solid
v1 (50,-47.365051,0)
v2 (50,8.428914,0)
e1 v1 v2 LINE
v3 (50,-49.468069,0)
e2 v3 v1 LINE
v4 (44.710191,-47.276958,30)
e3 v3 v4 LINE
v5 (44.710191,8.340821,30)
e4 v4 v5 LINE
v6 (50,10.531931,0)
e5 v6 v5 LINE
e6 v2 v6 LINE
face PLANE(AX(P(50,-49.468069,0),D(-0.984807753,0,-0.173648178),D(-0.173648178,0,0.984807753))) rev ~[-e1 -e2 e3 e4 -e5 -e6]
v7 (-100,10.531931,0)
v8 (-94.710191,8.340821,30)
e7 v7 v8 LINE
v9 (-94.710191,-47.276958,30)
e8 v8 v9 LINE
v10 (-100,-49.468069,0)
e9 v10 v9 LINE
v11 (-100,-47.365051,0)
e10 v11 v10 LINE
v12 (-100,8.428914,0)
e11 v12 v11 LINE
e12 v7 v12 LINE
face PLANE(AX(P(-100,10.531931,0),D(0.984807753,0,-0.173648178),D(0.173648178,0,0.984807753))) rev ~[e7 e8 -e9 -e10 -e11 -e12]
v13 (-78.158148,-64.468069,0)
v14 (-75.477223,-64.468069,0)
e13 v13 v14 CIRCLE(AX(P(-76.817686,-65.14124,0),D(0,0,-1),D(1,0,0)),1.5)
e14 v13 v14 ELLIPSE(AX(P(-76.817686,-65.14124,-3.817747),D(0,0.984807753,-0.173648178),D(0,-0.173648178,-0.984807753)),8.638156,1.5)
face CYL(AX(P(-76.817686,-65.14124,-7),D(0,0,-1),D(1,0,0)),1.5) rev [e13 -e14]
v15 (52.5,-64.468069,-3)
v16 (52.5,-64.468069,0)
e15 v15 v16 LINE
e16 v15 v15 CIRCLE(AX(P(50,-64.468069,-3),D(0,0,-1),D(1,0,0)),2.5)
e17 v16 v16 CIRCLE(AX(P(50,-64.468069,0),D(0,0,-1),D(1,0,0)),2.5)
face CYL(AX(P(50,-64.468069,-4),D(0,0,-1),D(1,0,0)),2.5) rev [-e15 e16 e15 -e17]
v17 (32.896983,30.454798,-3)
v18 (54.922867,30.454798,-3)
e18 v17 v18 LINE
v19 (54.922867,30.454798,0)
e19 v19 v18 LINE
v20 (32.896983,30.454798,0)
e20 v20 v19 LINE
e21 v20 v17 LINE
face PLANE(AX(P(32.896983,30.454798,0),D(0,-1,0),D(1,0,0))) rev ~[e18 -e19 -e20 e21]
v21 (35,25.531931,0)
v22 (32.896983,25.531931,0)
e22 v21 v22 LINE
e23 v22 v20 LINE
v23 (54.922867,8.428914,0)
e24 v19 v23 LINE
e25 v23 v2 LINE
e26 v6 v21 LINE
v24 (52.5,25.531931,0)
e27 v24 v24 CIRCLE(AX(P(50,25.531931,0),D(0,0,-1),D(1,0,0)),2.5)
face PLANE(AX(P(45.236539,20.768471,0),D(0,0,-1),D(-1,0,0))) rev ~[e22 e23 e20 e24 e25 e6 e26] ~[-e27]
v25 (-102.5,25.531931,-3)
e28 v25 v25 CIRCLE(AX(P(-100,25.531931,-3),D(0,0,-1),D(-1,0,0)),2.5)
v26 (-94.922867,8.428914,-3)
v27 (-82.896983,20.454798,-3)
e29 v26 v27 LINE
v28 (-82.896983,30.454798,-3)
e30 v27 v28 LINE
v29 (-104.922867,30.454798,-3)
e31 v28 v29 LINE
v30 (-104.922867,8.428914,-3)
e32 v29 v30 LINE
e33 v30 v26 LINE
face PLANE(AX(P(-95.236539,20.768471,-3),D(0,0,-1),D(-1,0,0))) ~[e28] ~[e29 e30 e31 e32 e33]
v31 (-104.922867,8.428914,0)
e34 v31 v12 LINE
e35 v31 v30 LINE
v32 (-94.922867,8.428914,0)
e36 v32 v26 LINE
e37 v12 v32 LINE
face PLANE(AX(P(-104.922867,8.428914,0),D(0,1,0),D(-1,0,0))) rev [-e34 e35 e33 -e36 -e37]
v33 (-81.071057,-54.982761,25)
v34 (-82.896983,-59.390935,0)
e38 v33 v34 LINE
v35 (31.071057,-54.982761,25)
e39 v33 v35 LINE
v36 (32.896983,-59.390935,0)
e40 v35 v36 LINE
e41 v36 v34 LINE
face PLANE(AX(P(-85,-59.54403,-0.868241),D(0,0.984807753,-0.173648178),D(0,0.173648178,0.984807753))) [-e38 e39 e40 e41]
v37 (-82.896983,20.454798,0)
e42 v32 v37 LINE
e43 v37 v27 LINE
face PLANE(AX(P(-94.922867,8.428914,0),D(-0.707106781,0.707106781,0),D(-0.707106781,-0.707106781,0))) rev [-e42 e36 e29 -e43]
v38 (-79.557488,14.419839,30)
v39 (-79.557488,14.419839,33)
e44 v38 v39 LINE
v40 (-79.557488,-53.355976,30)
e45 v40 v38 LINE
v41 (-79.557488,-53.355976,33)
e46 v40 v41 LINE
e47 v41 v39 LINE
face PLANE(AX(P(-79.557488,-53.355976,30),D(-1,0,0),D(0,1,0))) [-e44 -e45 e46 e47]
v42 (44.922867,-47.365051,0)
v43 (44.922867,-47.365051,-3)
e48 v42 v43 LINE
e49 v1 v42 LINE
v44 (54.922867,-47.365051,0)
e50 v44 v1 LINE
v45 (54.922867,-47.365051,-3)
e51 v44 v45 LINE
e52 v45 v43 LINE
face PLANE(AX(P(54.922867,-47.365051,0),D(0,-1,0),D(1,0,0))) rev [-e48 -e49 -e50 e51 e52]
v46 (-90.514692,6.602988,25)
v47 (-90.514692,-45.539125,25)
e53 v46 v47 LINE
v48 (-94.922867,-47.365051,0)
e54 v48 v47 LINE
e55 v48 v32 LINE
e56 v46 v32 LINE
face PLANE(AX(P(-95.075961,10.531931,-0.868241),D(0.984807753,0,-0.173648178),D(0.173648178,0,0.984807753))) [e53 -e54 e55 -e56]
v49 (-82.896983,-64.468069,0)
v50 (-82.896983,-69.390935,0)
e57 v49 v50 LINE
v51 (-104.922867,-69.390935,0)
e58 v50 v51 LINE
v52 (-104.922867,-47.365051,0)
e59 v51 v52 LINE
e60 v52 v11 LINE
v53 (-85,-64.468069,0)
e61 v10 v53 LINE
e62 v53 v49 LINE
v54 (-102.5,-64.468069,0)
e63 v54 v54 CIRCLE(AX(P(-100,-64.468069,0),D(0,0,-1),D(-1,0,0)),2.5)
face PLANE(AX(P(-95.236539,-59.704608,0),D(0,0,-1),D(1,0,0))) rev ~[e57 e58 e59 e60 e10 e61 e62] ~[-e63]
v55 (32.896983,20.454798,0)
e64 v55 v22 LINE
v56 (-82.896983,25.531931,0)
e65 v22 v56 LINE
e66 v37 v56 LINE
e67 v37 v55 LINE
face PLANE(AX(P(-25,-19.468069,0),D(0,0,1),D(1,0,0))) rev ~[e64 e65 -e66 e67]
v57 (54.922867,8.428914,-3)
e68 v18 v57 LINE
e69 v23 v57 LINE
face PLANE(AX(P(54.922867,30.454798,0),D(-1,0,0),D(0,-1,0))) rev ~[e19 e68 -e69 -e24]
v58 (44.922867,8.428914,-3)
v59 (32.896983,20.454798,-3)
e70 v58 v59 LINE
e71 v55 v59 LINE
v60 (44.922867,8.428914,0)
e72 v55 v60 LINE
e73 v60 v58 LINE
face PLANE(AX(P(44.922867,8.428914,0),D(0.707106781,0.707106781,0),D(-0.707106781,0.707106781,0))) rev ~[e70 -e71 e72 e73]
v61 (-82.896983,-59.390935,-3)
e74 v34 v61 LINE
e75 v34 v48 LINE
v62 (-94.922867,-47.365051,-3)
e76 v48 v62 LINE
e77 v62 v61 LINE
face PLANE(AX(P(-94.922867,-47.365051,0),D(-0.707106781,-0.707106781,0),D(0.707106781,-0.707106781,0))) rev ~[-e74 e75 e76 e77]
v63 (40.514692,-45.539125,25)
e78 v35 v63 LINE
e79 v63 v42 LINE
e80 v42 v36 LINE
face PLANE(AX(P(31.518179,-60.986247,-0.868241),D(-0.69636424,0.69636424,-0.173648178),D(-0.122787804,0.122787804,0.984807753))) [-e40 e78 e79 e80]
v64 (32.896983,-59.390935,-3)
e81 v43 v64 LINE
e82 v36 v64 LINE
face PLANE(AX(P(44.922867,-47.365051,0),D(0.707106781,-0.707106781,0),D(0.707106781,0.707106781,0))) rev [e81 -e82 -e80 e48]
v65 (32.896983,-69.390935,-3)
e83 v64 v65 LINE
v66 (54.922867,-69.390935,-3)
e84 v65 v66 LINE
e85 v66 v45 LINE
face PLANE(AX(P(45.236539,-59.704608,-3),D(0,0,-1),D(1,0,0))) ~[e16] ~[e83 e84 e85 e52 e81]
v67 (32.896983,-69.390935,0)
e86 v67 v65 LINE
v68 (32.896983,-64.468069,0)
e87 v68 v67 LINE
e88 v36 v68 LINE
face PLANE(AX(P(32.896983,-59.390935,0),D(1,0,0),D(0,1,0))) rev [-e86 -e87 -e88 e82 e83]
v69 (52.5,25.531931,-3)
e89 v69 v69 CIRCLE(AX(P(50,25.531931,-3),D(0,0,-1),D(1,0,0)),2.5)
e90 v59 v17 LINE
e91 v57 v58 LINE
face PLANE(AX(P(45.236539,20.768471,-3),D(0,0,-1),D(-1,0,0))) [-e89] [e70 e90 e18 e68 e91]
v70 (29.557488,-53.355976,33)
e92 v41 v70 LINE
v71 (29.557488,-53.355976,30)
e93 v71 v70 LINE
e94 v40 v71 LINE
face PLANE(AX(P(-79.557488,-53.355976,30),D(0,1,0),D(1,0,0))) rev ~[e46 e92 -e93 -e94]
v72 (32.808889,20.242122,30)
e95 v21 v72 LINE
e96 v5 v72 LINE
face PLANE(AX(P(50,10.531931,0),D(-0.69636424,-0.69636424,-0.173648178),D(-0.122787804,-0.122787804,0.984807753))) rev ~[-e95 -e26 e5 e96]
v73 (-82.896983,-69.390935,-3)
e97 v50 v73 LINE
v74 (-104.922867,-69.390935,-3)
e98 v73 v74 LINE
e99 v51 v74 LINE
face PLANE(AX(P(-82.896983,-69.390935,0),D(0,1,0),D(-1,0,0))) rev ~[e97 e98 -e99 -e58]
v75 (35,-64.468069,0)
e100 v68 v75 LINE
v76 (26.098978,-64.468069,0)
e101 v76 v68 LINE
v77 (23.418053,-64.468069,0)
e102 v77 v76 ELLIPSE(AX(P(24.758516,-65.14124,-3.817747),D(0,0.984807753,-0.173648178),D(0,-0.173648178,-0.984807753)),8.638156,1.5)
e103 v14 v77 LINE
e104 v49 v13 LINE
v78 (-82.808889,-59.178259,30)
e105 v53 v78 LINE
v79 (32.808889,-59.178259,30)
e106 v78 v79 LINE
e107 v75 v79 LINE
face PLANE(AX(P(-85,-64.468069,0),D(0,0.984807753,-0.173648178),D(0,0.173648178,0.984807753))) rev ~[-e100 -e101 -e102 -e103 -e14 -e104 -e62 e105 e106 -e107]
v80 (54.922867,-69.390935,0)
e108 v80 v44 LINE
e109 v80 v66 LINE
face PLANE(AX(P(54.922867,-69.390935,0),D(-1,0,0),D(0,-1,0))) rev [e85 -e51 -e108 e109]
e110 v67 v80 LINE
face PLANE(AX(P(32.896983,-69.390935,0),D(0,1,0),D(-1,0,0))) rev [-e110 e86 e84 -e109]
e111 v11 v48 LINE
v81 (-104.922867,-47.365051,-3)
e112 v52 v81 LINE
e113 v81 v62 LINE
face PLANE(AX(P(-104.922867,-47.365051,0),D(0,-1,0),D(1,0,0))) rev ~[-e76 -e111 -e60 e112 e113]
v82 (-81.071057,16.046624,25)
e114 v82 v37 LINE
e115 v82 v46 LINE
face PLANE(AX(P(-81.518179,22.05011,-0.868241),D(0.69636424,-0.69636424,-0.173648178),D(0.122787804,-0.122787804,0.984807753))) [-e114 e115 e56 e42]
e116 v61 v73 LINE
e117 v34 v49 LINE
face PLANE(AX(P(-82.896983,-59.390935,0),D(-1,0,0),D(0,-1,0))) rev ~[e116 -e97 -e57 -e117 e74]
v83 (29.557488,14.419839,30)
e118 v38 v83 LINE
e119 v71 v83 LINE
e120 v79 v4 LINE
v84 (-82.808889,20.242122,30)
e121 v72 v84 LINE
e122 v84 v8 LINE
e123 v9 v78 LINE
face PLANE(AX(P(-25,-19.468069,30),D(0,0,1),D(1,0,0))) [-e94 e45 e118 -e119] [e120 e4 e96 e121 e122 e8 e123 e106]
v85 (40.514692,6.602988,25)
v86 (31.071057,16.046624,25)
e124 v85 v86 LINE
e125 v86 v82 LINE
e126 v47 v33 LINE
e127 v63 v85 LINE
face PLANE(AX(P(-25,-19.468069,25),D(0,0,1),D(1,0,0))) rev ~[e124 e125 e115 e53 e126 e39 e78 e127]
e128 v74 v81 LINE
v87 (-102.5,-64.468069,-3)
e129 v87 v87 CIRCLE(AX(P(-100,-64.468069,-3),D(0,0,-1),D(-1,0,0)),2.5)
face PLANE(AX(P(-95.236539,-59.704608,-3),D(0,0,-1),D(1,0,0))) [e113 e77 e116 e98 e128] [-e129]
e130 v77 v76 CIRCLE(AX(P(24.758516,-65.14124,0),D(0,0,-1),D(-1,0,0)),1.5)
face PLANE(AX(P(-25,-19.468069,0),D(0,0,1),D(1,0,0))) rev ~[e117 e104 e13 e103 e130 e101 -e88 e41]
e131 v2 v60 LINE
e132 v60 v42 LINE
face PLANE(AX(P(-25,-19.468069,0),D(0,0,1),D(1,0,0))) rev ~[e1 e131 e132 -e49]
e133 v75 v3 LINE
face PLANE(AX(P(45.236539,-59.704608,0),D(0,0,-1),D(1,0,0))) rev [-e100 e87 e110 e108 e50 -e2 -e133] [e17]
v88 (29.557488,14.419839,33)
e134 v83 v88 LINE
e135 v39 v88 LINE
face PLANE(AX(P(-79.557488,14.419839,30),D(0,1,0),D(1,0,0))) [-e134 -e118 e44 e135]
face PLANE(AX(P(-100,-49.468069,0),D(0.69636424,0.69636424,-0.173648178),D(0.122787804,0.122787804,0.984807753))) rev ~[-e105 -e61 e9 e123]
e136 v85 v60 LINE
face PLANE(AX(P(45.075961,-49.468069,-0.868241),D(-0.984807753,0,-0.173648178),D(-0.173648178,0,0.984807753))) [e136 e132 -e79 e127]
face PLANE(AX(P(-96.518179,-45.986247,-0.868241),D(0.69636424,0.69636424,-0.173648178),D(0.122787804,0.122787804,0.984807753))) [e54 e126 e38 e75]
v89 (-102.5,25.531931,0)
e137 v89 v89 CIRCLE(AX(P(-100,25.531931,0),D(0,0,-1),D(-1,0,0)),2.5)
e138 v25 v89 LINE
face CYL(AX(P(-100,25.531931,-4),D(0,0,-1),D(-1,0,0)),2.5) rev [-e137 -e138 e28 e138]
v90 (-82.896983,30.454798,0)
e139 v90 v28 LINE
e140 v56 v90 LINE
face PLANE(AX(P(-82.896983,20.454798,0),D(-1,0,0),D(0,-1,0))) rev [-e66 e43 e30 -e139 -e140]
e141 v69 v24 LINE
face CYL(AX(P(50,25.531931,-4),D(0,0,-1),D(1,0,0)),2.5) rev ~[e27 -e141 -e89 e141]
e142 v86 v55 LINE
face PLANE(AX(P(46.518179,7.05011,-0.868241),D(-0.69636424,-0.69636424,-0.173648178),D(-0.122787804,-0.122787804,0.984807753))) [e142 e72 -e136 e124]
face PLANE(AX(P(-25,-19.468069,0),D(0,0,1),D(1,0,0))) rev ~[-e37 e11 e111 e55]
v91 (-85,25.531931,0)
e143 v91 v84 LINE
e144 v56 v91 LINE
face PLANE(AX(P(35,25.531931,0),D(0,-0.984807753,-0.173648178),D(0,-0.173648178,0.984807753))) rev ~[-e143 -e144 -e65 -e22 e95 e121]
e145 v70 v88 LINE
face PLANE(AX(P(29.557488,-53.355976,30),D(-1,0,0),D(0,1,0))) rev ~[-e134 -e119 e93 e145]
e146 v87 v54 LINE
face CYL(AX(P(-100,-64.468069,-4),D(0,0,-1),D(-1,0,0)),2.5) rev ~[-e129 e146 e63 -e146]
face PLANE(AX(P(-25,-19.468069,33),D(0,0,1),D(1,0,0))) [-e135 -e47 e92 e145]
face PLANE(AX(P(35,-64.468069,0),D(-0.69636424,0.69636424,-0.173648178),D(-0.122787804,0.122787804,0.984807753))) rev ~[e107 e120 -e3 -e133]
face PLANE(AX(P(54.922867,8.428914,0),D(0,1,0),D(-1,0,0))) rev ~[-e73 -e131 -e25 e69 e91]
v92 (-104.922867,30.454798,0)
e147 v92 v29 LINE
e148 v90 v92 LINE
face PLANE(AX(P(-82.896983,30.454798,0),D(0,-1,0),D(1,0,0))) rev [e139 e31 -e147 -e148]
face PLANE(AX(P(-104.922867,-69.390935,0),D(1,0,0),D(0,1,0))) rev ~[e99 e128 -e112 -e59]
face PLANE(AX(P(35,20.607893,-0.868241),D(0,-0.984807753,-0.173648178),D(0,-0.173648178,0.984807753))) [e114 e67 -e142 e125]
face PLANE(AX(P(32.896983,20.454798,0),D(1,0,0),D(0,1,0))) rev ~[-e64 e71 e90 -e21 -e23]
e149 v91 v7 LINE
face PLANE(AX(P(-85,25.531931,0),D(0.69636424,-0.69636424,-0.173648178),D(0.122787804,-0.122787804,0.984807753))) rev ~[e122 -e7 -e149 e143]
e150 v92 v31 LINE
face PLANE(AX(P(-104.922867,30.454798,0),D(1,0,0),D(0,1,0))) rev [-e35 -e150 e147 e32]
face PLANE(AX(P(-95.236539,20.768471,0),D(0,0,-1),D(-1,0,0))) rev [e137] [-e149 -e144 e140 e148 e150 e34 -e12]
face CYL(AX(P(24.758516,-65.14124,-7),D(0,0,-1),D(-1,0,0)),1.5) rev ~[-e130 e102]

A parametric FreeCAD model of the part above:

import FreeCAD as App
import Part
import Sketcher
from FreeCAD import Vector


def faces_at(feature, points):
    """Names of the faces that lie closest to the given points."""
    faces = feature.Shape.Faces
    near = lambda p: min(range(len(faces)), key=lambda i: faces[i].distToShape(Part.Vertex(*p))[0])
    return sorted({f"Face{near(p) + 1}" for p in points})


def add_polygon(sketch, points):
    """Adds a closed chain of lines whose ends are joined by coincident constraints."""
    first, n = sketch.GeometryCount, len(points)
    for a, b in zip(points, points[1:] + points[:1]):
        sketch.addGeometry(Part.LineSegment(App.Vector(*a, 0), App.Vector(*b, 0)), False)
    for i in range(n):
        sketch.addConstraint(Sketcher.Constraint("Coincident", first + i, 2, first + (i + 1) % n, 1))

doc = App.newDocument("Part")
body = doc.addObject("PartDesign::Body", "Body")

sketch1 = body.newObject("Sketcher::SketchObject", "Sketch")
sketch1.AttachmentSupport = (doc.getObject("XY_Plane"), [""])
sketch1.MapMode = "FlatFace"
add_polygon(sketch1, [(-100, 11), (-100, -49), (-85, -64), (35, -64), (50, -49), (50, 11), (35, 26), (-85, 26)])
sketch1.addConstraint([
    Sketcher.Constraint("Vertical", 0),
    Sketcher.Constraint("Horizontal", 2),
    Sketcher.Constraint("Vertical", 4),
    Sketcher.Constraint("Horizontal", 6),
    Sketcher.Constraint("Perpendicular", 1, 3),
    Sketcher.Constraint("Perpendicular", 3, 5),
    Sketcher.Constraint("Perpendicular", 5, 7),
    Sketcher.Constraint("Horizontal", 0, 2, 3, 2),
    Sketcher.Constraint("Horizontal", 4, 2, 7, 2),
    Sketcher.Constraint("Vertical", 2, 2, 5, 2),
    Sketcher.Constraint("Vertical", 1, 2, 6, 2),
    Sketcher.Constraint("DistanceX", 2, 1, 2, 2, 120.0),
    Sketcher.Constraint("DistanceY", 0, 2, 0, 1, 60.0),
    Sketcher.Constraint("DistanceX", 0, 2, -1, 1, 100.0),
    Sketcher.Constraint("DistanceX", 1, 2, -1, 1, 85.0),
    Sketcher.Constraint("DistanceY", 0, 2, -1, 1, 49.468069),
])
pad1 = body.newObject("PartDesign::Pad", "Pad")
pad1.Profile = sketch1
pad1.Length = 30
pad1.TaperAngle = -10
doc.recompute()

thickness = body.newObject("PartDesign::Thickness", "Thickness")
thickness.Base = (pad1, faces_at(pad1, [(-25, -19.468, 0)]))
thickness.Value = 5
thickness.Reversed = True
thickness.Join = "Intersection"

sketch2 = body.newObject("Sketcher::SketchObject", "Sketch001")
sketch2.AttachmentSupport = (doc.getObject("XY_Plane"), [""])
sketch2.MapMode = "FlatFace"
sketch2.AttachmentOffset = App.Placement(Vector(0, 0, -7), App.Rotation())
sketch2.addGeometry(Part.Circle(Vector(24.8, -65.1, 0), Vector(0, 0, 1), 1.5), False)
sketch2.addConstraint([
    Sketcher.Constraint("Diameter", 0, 3.0),
    Sketcher.Constraint("DistanceY", 0, 3, -1, 1, 65.14124),
    Sketcher.Constraint("DistanceX", -1, 1, 0, 3, 24.758516),
])
pocket1 = body.newObject("PartDesign::Pocket", "Pocket")
pocket1.Profile = sketch2
pocket1.Length = 15
pocket1.Reversed = True
doc.recompute()

datumplane = body.newObject("PartDesign::Plane", "DatumPlane")
datumplane.AttachmentSupport = (doc.getObject("YZ_Plane"), [""])
datumplane.MapMode = "FlatFace"
datumplane.AttachmentOffset = App.Placement(Vector(0, 0, -26.029585), App.Rotation())
mirrored = body.newObject("PartDesign::Mirrored", "Mirrored")
mirrored.Originals = [pocket1]
mirrored.MirrorPlane = (datumplane, [""])
body.Tip = mirrored

sketch3 = body.newObject("Sketcher::SketchObject", "Sketch002")
sketch3.AttachmentSupport = (doc.getObject("XY_Plane"), [""])
sketch3.MapMode = "FlatFace"
sketch3.AttachmentOffset = App.Placement(Vector(0, 0, 30), App.Rotation())
add_polygon(sketch3, [(-80, 14), (-80, -53), (30, -53), (30, 14)])
sketch3.addConstraint([
    Sketcher.Constraint("Vertical", 0),
    Sketcher.Constraint("Horizontal", 1),
    Sketcher.Constraint("Vertical", 2),
    Sketcher.Constraint("Horizontal", 3),
    Sketcher.Constraint("DistanceX", 1, 1, 1, 2, 109.114976),
    Sketcher.Constraint("DistanceY", 0, 2, 0, 1, 67.775815),
    Sketcher.Constraint("DistanceX", 0, 2, -1, 1, 79.557488),
    Sketcher.Constraint("DistanceY", -1, 1, 2, 2, 14.419839),
])
pad2 = body.newObject("PartDesign::Pad", "Pad001")
pad2.Profile = sketch3
pad2.Length = 3

sketch4 = body.newObject("Sketcher::SketchObject", "Sketch003")
sketch4.AttachmentSupport = (doc.getObject("XY_Plane"), [""])
sketch4.MapMode = "FlatFace"
add_polygon(sketch4, [(55, 8), (45, 8), (33, 20), (33, 30), (55, 30)])
sketch4.addConstraint([
    Sketcher.Constraint("Horizontal", 0),
    Sketcher.Constraint("Vertical", 2),
    Sketcher.Constraint("Horizontal", 3),
    Sketcher.Constraint("Vertical", 4),
    Sketcher.Constraint("Equal", 0, 2),
    Sketcher.Constraint("Equal", 3, 4),
    Sketcher.Constraint("DistanceX", 0, 2, 0, 1, 10.0),
    Sketcher.Constraint("DistanceY", -1, 1, 1, 2, 20.454798),
    Sketcher.Constraint("Distance", 1, 17.007169),
    Sketcher.Constraint("DistanceX", -1, 1, 0, 2, 44.922867),
])
pad3 = body.newObject("PartDesign::Pad", "Pad002")
pad3.Profile = sketch4
pad3.Length = 3
pad3.Reversed = True
doc.recompute()

datumplane2 = body.newObject("PartDesign::Plane", "DatumPlane001")
datumplane2.AttachmentSupport = (doc.getObject("YZ_Plane"), [""])
datumplane2.MapMode = "FlatFace"
datumplane2.AttachmentOffset = App.Placement(Vector(0, 0, -25), App.Rotation())
mirrored2 = body.newObject("PartDesign::Mirrored", "Mirrored001")
mirrored2.Originals = [pad3]
mirrored2.MirrorPlane = (datumplane2, [""])
body.Tip = mirrored2
doc.recompute()

datumplane3 = body.newObject("PartDesign::Plane", "DatumPlane002")
datumplane3.AttachmentSupport = (doc.getObject("XZ_Plane"), [""])
datumplane3.MapMode = "FlatFace"
datumplane3.AttachmentOffset = App.Placement(Vector(0, 0, 19.468069), App.Rotation())
mirrored3 = body.newObject("PartDesign::Mirrored", "Mirrored002")
mirrored3.Originals = [pad3]
mirrored3.MirrorPlane = (datumplane3, [""])
body.Tip = mirrored3

sketch5 = body.newObject("Sketcher::SketchObject", "Sketch004")
sketch5.AttachmentSupport = (doc.getObject("XY_Plane"), [""])
sketch5.MapMode = "FlatFace"
add_polygon(sketch5, [(-105, -47), (-95, -47), (-83, -59), (-83, -69), (-105, -69)])
sketch5.addConstraint([
    Sketcher.Constraint("Horizontal", 0),
    Sketcher.Constraint("Vertical", 2),
    Sketcher.Constraint("Horizontal", 3),
    Sketcher.Constraint("Vertical", 4),
    Sketcher.Constraint("Equal", 0, 2),
    Sketcher.Constraint("Equal", 3, 4),
    Sketcher.Constraint("DistanceX", 0, 1, 0, 2, 10.0),
    Sketcher.Constraint("Distance", 1, 17.007169),
    Sketcher.Constraint("DistanceY", 0, 2, -1, 1, 47.365051),
    Sketcher.Constraint("DistanceX", 0, 2, -1, 1, 94.922867),
])
pad4 = body.newObject("PartDesign::Pad", "Pad003")
pad4.Profile = sketch5
pad4.Length = 3
pad4.Reversed = True

sketch6 = body.newObject("Sketcher::SketchObject", "Sketch005")
sketch6.AttachmentSupport = (doc.getObject("XY_Plane"), [""])
sketch6.MapMode = "FlatFace"
sketch6.AttachmentOffset = App.Placement(Vector(0, 0, -4), App.Rotation())
sketch6.addGeometry(Part.Circle(Vector(50, -64.5, 0), Vector(0, 0, 1), 2.5), False)
sketch6.addConstraint([
    Sketcher.Constraint("Diameter", 0, 5.0),
    Sketcher.Constraint("DistanceX", -1, 1, 0, 3, 50.0),
    Sketcher.Constraint("DistanceY", 0, 3, -1, 1, 64.468069),
])
pocket2 = body.newObject("PartDesign::Pocket", "Pocket001")
pocket2.Profile = sketch6
pocket2.Length = 38
pocket2.Reversed = True
doc.recompute()

datumplane4 = body.newObject("PartDesign::Plane", "DatumPlane003")
datumplane4.AttachmentSupport = (doc.getObject("YZ_Plane"), [""])
datumplane4.MapMode = "FlatFace"
datumplane4.AttachmentOffset = App.Placement(Vector(0, 0, -25), App.Rotation())
mirrored4 = body.newObject("PartDesign::Mirrored", "Mirrored003")
mirrored4.Originals = [pocket2]
mirrored4.MirrorPlane = (datumplane4, [""])
body.Tip = mirrored4
doc.recompute()

datumplane5 = body.newObject("PartDesign::Plane", "DatumPlane004")
datumplane5.AttachmentSupport = (doc.getObject("XZ_Plane"), [""])
datumplane5.MapMode = "FlatFace"
datumplane5.AttachmentOffset = App.Placement(Vector(0, 0, 19.468069), App.Rotation())
mirrored5 = body.newObject("PartDesign::Mirrored", "Mirrored004")
mirrored5.Originals = [pocket2]
mirrored5.MirrorPlane = (datumplane5, [""])
body.Tip = mirrored5

sketch7 = body.newObject("Sketcher::SketchObject", "Sketch006")
sketch7.AttachmentSupport = (doc.getObject("XY_Plane"), [""])
sketch7.MapMode = "FlatFace"
sketch7.AttachmentOffset = App.Placement(Vector(0, 0, -4), App.Rotation())
sketch7.addGeometry(Part.Circle(Vector(-100, 25.5, 0), Vector(0, 0, 1), 2.5), False)
sketch7.addConstraint([
    Sketcher.Constraint("Diameter", 0, 5.0),
    Sketcher.Constraint("DistanceX", 0, 3, -1, 1, 100.0),
    Sketcher.Constraint("DistanceY", -1, 1, 0, 3, 25.531931),
])
pocket3 = body.newObject("PartDesign::Pocket", "Pocket002")
pocket3.Profile = sketch7
pocket3.Length = 38
pocket3.Reversed = True

doc.recompute()
